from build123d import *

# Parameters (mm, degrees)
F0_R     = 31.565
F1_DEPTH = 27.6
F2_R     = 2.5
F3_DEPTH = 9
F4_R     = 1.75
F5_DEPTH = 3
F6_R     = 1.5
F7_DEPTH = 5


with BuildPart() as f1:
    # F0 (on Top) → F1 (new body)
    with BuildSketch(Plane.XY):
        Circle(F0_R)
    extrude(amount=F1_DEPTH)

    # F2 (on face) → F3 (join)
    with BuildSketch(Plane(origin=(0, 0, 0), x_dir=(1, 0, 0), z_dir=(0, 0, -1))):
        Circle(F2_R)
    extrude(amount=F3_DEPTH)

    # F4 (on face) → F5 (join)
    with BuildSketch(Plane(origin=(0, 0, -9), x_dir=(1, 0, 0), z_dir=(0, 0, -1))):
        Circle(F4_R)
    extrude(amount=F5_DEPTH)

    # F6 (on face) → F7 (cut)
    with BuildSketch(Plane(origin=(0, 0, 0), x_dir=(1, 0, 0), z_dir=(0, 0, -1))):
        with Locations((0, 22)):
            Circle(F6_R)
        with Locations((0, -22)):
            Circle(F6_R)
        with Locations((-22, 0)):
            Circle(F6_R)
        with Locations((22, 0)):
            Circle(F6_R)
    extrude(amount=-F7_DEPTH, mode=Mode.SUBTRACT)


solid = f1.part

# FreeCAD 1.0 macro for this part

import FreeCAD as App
import Part
import Sketcher

V = App.Vector

doc = App.newDocument("Part")
params = doc.addObject("Spreadsheet::Sheet", "Params")
for row, (alias, value) in enumerate([
    ("sketch1_diameter", "63.13 mm"),
    ("pad1_length", "27.6 mm"),
    ("sketch2_diameter", "5 mm"),
    ("pad2_length", "9 mm"),
    ("sketch3_diameter", "3.5 mm"),
    ("pad3_length", "3 mm"),
    ("sketch4_diameter", "3 mm"),
    ("pocket1_length", "5 mm"),
], start=1):
    params.set(f"A{row}", alias)
    params.set(f"B{row}", "=" + value)
    params.setAlias(f"B{row}", alias)

body = doc.addObject("PartDesign::Body", "Body")

sketch1 = body.newObject("Sketcher::SketchObject", "Sketch")
sketch1.AttachmentSupport = (doc.getObject("XY_Plane"), [""])
sketch1.MapMode = "FlatFace"
sketch1.addGeometry(Part.Circle(V(0, 0, 0), V(0, 0, 1), 32), False)
sketch1.addConstraint(Sketcher.Constraint("Coincident", 0, 3, -1, 1))
sketch1.addConstraint(Sketcher.Constraint("Diameter", 0, 63.13))
sketch1.setExpression("Constraints[1]", "Params.sketch1_diameter")
pad1 = body.newObject("PartDesign::Pad", "Pad")
pad1.Profile = sketch1
pad1.setExpression("Length", "Params.pad1_length")

sketch2 = body.newObject("Sketcher::SketchObject", "Sketch001")
sketch2.AttachmentSupport = (doc.getObject("XY_Plane"), [""])
sketch2.MapMode = "FlatFace"
sketch2.addGeometry(Part.Circle(V(0, 0, 0), V(0, 0, 1), 2.5), False)
sketch2.addConstraint(Sketcher.Constraint("Coincident", 0, 3, -1, 1))
sketch2.addConstraint(Sketcher.Constraint("Diameter", 0, 5.0))
sketch2.setExpression("Constraints[1]", "Params.sketch2_diameter")
pad2 = body.newObject("PartDesign::Pad", "Pad001")
pad2.Profile = sketch2
pad2.setExpression("Length", "Params.pad2_length")
pad2.Reversed = True

sketch3 = body.newObject("Sketcher::SketchObject", "Sketch002")
sketch3.AttachmentSupport = (doc.getObject("XY_Plane"), [""])
sketch3.MapMode = "FlatFace"
sketch3.AttachmentOffset = App.Placement(V(0, 0, -9), App.Rotation())
sketch3.addGeometry(Part.Circle(V(0, 0, 0), V(0, 0, 1), 1.8), False)
sketch3.addConstraint(Sketcher.Constraint("Coincident", 0, 3, -1, 1))
sketch3.addConstraint(Sketcher.Constraint("Diameter", 0, 3.5))
sketch3.setExpression("Constraints[1]", "Params.sketch3_diameter")
pad3 = body.newObject("PartDesign::Pad", "Pad002")
pad3.Profile = sketch3
pad3.setExpression("Length", "Params.pad3_length")
pad3.Reversed = True

sketch4 = body.newObject("Sketcher::SketchObject", "Sketch003")
sketch4.AttachmentSupport = (doc.getObject("XY_Plane"), [""])
sketch4.MapMode = "FlatFace"
sketch4.addGeometry(Part.Circle(V(0, -22, 0), V(0, 0, 1), 1.5), False)
sketch4.addGeometry(Part.Circle(V(0, 22, 0), V(0, 0, 1), 1.5), False)
sketch4.addGeometry(Part.Circle(V(-22, 0, 0), V(0, 0, 1), 1.5), False)
sketch4.addGeometry(Part.Circle(V(22, 0, 0), V(0, 0, 1), 1.5), False)
sketch4.addConstraint(Sketcher.Constraint("Equal", 0, 1))
sketch4.addConstraint(Sketcher.Constraint("Equal", 1, 2))
sketch4.addConstraint(Sketcher.Constraint("Equal", 2, 3))
sketch4.addConstraint(Sketcher.Constraint("Symmetric", 0, 3, 1, 3, -1, 1))
sketch4.addConstraint(Sketcher.Constraint("Symmetric", 2, 3, 3, 3, -1, 1))
sketch4.addConstraint(Sketcher.Constraint("PointOnObject", 0, 3, -2))
sketch4.addConstraint(Sketcher.Constraint("PointOnObject", 2, 3, -1))
sketch4.addConstraint(Sketcher.Constraint("Diameter", 0, 3.0))
sketch4.addConstraint(Sketcher.Constraint("DistanceY", 0, 3, -1, 1, 22.0))
sketch4.addConstraint(Sketcher.Constraint("DistanceX", 2, 3, -1, 1, 22.0))
sketch4.setExpression("Constraints[7]", "Params.sketch4_diameter")
pocket1 = body.newObject("PartDesign::Pocket", "Pocket")
pocket1.Profile = sketch4
pocket1.setExpression("Length", "Params.pocket1_length")
pocket1.Reversed = True

doc.recompute()
